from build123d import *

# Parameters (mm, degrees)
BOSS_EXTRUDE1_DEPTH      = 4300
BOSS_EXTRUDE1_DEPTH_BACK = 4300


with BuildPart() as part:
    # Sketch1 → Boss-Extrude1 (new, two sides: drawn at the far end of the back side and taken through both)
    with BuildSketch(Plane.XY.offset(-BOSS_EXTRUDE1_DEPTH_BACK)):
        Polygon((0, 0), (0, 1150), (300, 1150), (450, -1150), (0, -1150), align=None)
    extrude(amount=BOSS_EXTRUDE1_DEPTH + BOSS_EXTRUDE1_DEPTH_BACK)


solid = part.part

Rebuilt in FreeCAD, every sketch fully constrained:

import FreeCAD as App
import Part
import Sketcher

V = App.Vector
Q = App.Units.Quantity

doc = App.newDocument("Part")
body = doc.addObject("PartDesign::Body", "Body")

# Sketch on XY plane
sketch1 = doc.addObject("Sketcher::SketchObject", "Sketch")
body.addObject(sketch1)
sketch1.AttachmentSupport = (doc.XY_Plane, [""])
sketch1.MapMode = "FlatFace"
sketch1.addGeometry([
    Part.LineSegment(V(0, 1150, 0), V(0, -1150, 0)),
    Part.LineSegment(V(0, -1150, 0), V(450, -1150, 0)),
    Part.LineSegment(V(450, -1150, 0), V(300, 1150, 0)),
    Part.LineSegment(V(300, 1150, 0), V(0, 1150, 0)),
], False)
sketch1.addConstraint([
    Sketcher.Constraint("Coincident", 0, 2, 1, 1),
    Sketcher.Constraint("Coincident", 1, 2, 2, 1),
    Sketcher.Constraint("Coincident", 2, 2, 3, 1),
    Sketcher.Constraint("Coincident", 3, 2, 0, 1),
    Sketcher.Constraint("Vertical", 0),
    Sketcher.Constraint("Horizontal", 1),
    Sketcher.Constraint("Horizontal", 3),
    Sketcher.Constraint("Symmetric", 0, 2, 3, 2, -1, 1),
    Sketcher.Constraint("DistanceX", 1, 1, 1, 2, Q("450 mm")),
    Sketcher.Constraint("DistanceX", 3, 2, 3, 1, Q("300 mm")),
    Sketcher.Constraint("DistanceY", 0, 2, 0, 1, Q("2300 mm")),
])
pad1 = doc.addObject("PartDesign::Pad", "Pad")
body.addObject(pad1)
pad1.Profile = sketch1
pad1.Type = "TwoLengths"
pad1.Length = 4300
pad1.Length2 = 4300

doc.recompute()
